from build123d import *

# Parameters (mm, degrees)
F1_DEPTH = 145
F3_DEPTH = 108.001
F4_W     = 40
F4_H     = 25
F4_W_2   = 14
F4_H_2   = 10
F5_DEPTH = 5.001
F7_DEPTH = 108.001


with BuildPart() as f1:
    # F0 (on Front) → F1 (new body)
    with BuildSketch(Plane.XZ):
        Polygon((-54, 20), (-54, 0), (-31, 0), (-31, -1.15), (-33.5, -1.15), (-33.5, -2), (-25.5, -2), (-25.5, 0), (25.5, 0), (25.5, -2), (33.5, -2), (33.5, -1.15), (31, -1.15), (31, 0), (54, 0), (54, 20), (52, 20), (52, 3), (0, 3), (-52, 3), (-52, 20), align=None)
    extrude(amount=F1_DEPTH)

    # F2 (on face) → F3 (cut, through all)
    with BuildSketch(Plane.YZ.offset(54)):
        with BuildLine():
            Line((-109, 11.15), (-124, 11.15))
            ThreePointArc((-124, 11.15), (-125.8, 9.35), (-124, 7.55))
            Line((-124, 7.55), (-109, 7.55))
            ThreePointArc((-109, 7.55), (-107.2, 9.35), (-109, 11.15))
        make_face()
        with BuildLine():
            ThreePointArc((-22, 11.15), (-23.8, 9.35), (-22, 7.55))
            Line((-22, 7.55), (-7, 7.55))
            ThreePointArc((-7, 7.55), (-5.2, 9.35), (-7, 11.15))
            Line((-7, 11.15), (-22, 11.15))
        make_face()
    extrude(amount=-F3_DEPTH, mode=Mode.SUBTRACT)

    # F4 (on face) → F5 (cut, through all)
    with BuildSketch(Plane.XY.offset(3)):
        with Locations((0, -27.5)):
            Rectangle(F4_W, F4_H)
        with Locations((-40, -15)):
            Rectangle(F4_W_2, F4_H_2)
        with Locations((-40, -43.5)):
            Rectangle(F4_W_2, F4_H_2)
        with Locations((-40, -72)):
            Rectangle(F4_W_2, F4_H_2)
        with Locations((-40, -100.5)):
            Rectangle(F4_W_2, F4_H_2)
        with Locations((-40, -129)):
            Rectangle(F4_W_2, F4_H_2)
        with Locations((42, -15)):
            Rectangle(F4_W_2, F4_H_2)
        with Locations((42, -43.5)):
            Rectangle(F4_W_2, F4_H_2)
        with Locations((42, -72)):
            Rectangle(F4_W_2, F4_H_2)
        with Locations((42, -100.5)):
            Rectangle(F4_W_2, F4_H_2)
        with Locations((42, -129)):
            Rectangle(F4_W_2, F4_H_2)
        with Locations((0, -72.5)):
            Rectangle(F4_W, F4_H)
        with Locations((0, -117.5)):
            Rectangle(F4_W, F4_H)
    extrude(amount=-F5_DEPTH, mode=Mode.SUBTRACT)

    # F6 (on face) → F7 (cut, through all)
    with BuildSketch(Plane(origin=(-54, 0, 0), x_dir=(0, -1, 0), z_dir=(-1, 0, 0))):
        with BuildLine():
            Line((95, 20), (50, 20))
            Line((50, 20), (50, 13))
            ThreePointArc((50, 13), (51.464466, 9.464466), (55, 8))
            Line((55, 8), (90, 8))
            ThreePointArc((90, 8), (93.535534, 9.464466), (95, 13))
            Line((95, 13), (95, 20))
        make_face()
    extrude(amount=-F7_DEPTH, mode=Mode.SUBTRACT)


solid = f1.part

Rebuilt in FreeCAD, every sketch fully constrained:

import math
import FreeCAD as App
import Part
import Sketcher
from FreeCAD import Vector

doc = App.newDocument("Part")
params = doc.addObject("Spreadsheet::Sheet", "Params")
for row, (alias, value) in enumerate([
    ("sketch1_width", "23 mm"),
    ("sketch1_width2", "8 mm"),
    ("sketch1_width3", "51 mm"),
    ("sketch1_width4", "2 mm"),
    ("sketch1_width5", "104 mm"),
    ("pad1_length", "145 mm"),
    ("sketch2_radius", "1.8 mm"),
    ("sketch2_width", "15 mm"),
    ("sketch3_width", "40 mm"),
    ("sketch3_width2", "14 mm"),
    ("sketch3_height", "25 mm"),
    ("sketch3_height2", "10 mm"),
    ("sketch4_radius", "5 mm"),
    ("sketch4_width", "45 mm"),
    ("sketch4_height", "7 mm"),
], start=1):
    params.set(f"A{row}", alias)
    params.set(f"B{row}", "=" + value)
    params.setAlias(f"B{row}", alias)

body = doc.addObject("PartDesign::Body", "Body")

sketch1 = doc.addObject("Sketcher::SketchObject", "Sketch")
body.addObject(sketch1)
sketch1.AttachmentSupport = (doc.XZ_Plane, [""])
sketch1.MapMode = "FlatFace"
sketch1.addGeometry([
    Part.LineSegment(Vector(-54, 20, 0), Vector(-54, 0, 0)),
    Part.LineSegment(Vector(-54, 0, 0), Vector(-31, 0, 0)),
    Part.LineSegment(Vector(-31, 0, 0), Vector(-31, -1.1, 0)),
    Part.LineSegment(Vector(-31, -1.1, 0), Vector(-33.5, -1.1, 0)),
    Part.LineSegment(Vector(-33.5, -1.1, 0), Vector(-33.5, -2, 0)),
    Part.LineSegment(Vector(-33.5, -2, 0), Vector(-25.5, -2, 0)),
    Part.LineSegment(Vector(-25.5, -2, 0), Vector(-25.5, 0, 0)),
    Part.LineSegment(Vector(-25.5, 0, 0), Vector(25.5, 0, 0)),
    Part.LineSegment(Vector(25.5, 0, 0), Vector(25.5, -2, 0)),
    Part.LineSegment(Vector(25.5, -2, 0), Vector(33.5, -2, 0)),
    Part.LineSegment(Vector(33.5, -2, 0), Vector(33.5, -1.1, 0)),
    Part.LineSegment(Vector(33.5, -1.1, 0), Vector(31, -1.1, 0)),
    Part.LineSegment(Vector(31, -1.1, 0), Vector(31, 0, 0)),
    Part.LineSegment(Vector(31, 0, 0), Vector(54, 0, 0)),
    Part.LineSegment(Vector(54, 0, 0), Vector(54, 20, 0)),
    Part.LineSegment(Vector(54, 20, 0), Vector(52, 20, 0)),
    Part.LineSegment(Vector(52, 20, 0), Vector(52, 3, 0)),
    Part.LineSegment(Vector(52, 3, 0), Vector(-52, 3, 0)),
    Part.LineSegment(Vector(-52, 3, 0), Vector(-52, 20, 0)),
    Part.LineSegment(Vector(-52, 20, 0), Vector(-54, 20, 0)),
], False)
sketch1.addConstraint([
    Sketcher.Constraint("Coincident", 0, 2, 1, 1),
    Sketcher.Constraint("Coincident", 1, 2, 2, 1),
    Sketcher.Constraint("Coincident", 2, 2, 3, 1),
    Sketcher.Constraint("Coincident", 3, 2, 4, 1),
    Sketcher.Constraint("Coincident", 4, 2, 5, 1),
    Sketcher.Constraint("Coincident", 5, 2, 6, 1),
    Sketcher.Constraint("Coincident", 6, 2, 7, 1),
    Sketcher.Constraint("Coincident", 7, 2, 8, 1),
    Sketcher.Constraint("Coincident", 8, 2, 9, 1),
    Sketcher.Constraint("Coincident", 9, 2, 10, 1),
    Sketcher.Constraint("Coincident", 10, 2, 11, 1),
    Sketcher.Constraint("Coincident", 11, 2, 12, 1),
    Sketcher.Constraint("Coincident", 12, 2, 13, 1),
    Sketcher.Constraint("Coincident", 13, 2, 14, 1),
    Sketcher.Constraint("Coincident", 14, 2, 15, 1),
    Sketcher.Constraint("Coincident", 15, 2, 16, 1),
    Sketcher.Constraint("Coincident", 16, 2, 17, 1),
    Sketcher.Constraint("Coincident", 17, 2, 18, 1),
    Sketcher.Constraint("Coincident", 18, 2, 19, 1),
    Sketcher.Constraint("Coincident", 19, 2, 0, 1),
    Sketcher.Constraint("Vertical", 0),
    Sketcher.Constraint("Horizontal", 1),
    Sketcher.Constraint("Vertical", 2),
    Sketcher.Constraint("Horizontal", 3),
    Sketcher.Constraint("Vertical", 4),
    Sketcher.Constraint("Horizontal", 5),
    Sketcher.Constraint("Vertical", 6),
    Sketcher.Constraint("Horizontal", 7),
    Sketcher.Constraint("Vertical", 8),
    Sketcher.Constraint("Horizontal", 9),
    Sketcher.Constraint("Vertical", 10),
    Sketcher.Constraint("Horizontal", 11),
    Sketcher.Constraint("Vertical", 12),
    Sketcher.Constraint("Horizontal", 13),
    Sketcher.Constraint("Vertical", 14),
    Sketcher.Constraint("Horizontal", 15),
    Sketcher.Constraint("Vertical", 16),
    Sketcher.Constraint("Horizontal", 17),
    Sketcher.Constraint("Vertical", 18),
    Sketcher.Constraint("Horizontal", 19),
    Sketcher.Constraint("Symmetric", 6, 2, 7, 2, -1, 1),
    Sketcher.Constraint("Symmetric", 1, 2, 12, 2, -1, 1),
    Sketcher.Constraint("Symmetric", 4, 2, 9, 2, -2),
    Sketcher.Constraint("Symmetric", 0, 2, 13, 2, -2),
    Sketcher.Constraint("Symmetric", 15, 2, 18, 2, -2),
    Sketcher.Constraint("Horizontal", 3, 2, 10, 2),
    Sketcher.Constraint("Equal", 19, 6),
    Sketcher.Constraint("DistanceX", 1, 1, 1, 2, 23.0),
    Sketcher.Constraint("DistanceX", 5, 1, 5, 2, 8.0),
    Sketcher.Constraint("DistanceX", 7, 1, 7, 2, 51.0),
    Sketcher.Constraint("DistanceX", 15, 2, 15, 1, 2.0),
    Sketcher.Constraint("DistanceX", 17, 2, 17, 1, 104.0),
    Sketcher.Constraint("DistanceY", 0, 2, 0, 1, 20.0),
    Sketcher.Constraint("DistanceY", 16, 2, 16, 1, 17.0),
    Sketcher.Constraint("DistanceY", 2, 2, 2, 1, 1.15),
])
sketch1.setExpression("Constraints[47]", "Params.sketch1_width")
sketch1.setExpression("Constraints[48]", "Params.sketch1_width2")
sketch1.setExpression("Constraints[49]", "Params.sketch1_width3")
sketch1.setExpression("Constraints[50]", "Params.sketch1_width4")
sketch1.setExpression("Constraints[51]", "Params.sketch1_width5")
pad1 = doc.addObject("PartDesign::Pad", "Pad")
body.addObject(pad1)
pad1.Profile = sketch1
pad1.setExpression("Length", "Params.pad1_length")

sketch2 = doc.addObject("Sketcher::SketchObject", "Sketch001")
body.addObject(sketch2)
sketch2.AttachmentSupport = (doc.YZ_Plane, [""])
sketch2.MapMode = "FlatFace"
sketch2.AttachmentOffset = App.Placement(Vector(0, 0, 54), App.Rotation())
sketch2.addGeometry([
    Part.LineSegment(Vector(-109, 11.2, 0), Vector(-124, 11.2, 0)),
    Part.ArcOfCircle(Part.Circle(Vector(-124, 9.3, 0), Vector(0, 0, 1), 1.8), math.radians(90), math.radians(270)),
    Part.LineSegment(Vector(-124, 7.5, 0), Vector(-109, 7.5, 0)),
    Part.ArcOfCircle(Part.Circle(Vector(-109, 9.3, 0), Vector(0, 0, 1), 1.8), math.radians(-90), math.radians(90)),
    Part.ArcOfCircle(Part.Circle(Vector(-22, 9.3, 0), Vector(0, 0, 1), 1.8), math.radians(90), math.radians(270)),
    Part.LineSegment(Vector(-22, 7.5, 0), Vector(-7, 7.5, 0)),
    Part.ArcOfCircle(Part.Circle(Vector(-7, 9.3, 0), Vector(0, 0, 1), 1.8), math.radians(-90), math.radians(90)),
    Part.LineSegment(Vector(-7, 11.2, 0), Vector(-22, 11.2, 0)),
], False)
sketch2.addConstraint([
    Sketcher.Constraint("Tangent", 0, 2, 1, 1),
    Sketcher.Constraint("Tangent", 1, 2, 2, 1),
    Sketcher.Constraint("Tangent", 2, 2, 3, 1),
    Sketcher.Constraint("Tangent", 3, 2, 0, 1),
    Sketcher.Constraint("Tangent", 4, 2, 5, 1),
    Sketcher.Constraint("Tangent", 5, 2, 6, 1),
    Sketcher.Constraint("Tangent", 6, 2, 7, 1),
    Sketcher.Constraint("Tangent", 7, 2, 4, 1),
    Sketcher.Constraint("Horizontal", 0),
    Sketcher.Constraint("Horizontal", 2),
    Sketcher.Constraint("Horizontal", 5),
    Sketcher.Constraint("Horizontal", 7),
    Sketcher.Constraint("Equal", 3, 4),
    Sketcher.Constraint("Horizontal", 3, 3, 4, 3),
    Sketcher.Constraint("Equal", 2, 5),
    Sketcher.Constraint("Radius", 1, 1.8),
    Sketcher.Constraint("DistanceX", 0, 2, 0, 1, 15.0),
    Sketcher.Constraint("DistanceX", 1, 3, -1, 1, 124.0),
    Sketcher.Constraint("DistanceX", 4, 3, -1, 1, 22.0),
    Sketcher.Constraint("DistanceY", -1, 1, 1, 3, 9.35),
])
sketch2.setExpression("Constraints[15]", "Params.sketch2_radius")
sketch2.setExpression("Constraints[16]", "Params.sketch2_width")
pocket1 = doc.addObject("PartDesign::Pocket", "Pocket")
body.addObject(pocket1)
pocket1.Profile = sketch2
pocket1.Type = "ThroughAll"

sketch3 = doc.addObject("Sketcher::SketchObject", "Sketch002")
body.addObject(sketch3)
sketch3.AttachmentSupport = (doc.XY_Plane, [""])
sketch3.MapMode = "FlatFace"
sketch3.AttachmentOffset = App.Placement(Vector(0, 0, 3), App.Rotation())
sketch3.addGeometry([
    Part.LineSegment(Vector(-20, -15, 0), Vector(-20, -40, 0)),
    Part.LineSegment(Vector(-20, -40, 0), Vector(20, -40, 0)),
    Part.LineSegment(Vector(20, -40, 0), Vector(20, -15, 0)),
    Part.LineSegment(Vector(20, -15, 0), Vector(-20, -15, 0)),
    Part.LineSegment(Vector(-47, -10, 0), Vector(-47, -20, 0)),
    Part.LineSegment(Vector(-47, -20, 0), Vector(-33, -20, 0)),
    Part.LineSegment(Vector(-33, -20, 0), Vector(-33, -10, 0)),
    Part.LineSegment(Vector(-33, -10, 0), Vector(-47, -10, 0)),
    Part.LineSegment(Vector(-47, -38, 0), Vector(-47, -48, 0)),
    Part.LineSegment(Vector(-47, -48, 0), Vector(-33, -48, 0)),
    Part.LineSegment(Vector(-33, -48, 0), Vector(-33, -38, 0)),
    Part.LineSegment(Vector(-33, -38, 0), Vector(-47, -38, 0)),
    Part.LineSegment(Vector(-47, -67, 0), Vector(-47, -77, 0)),
    Part.LineSegment(Vector(-47, -77, 0), Vector(-33, -77, 0)),
    Part.LineSegment(Vector(-33, -77, 0), Vector(-33, -67, 0)),
    Part.LineSegment(Vector(-33, -67, 0), Vector(-47, -67, 0)),
    Part.LineSegment(Vector(-47, -96, 0), Vector(-47, -106, 0)),
    Part.LineSegment(Vector(-47, -106, 0), Vector(-33, -106, 0)),
    Part.LineSegment(Vector(-33, -106, 0), Vector(-33, -96, 0)),
    Part.LineSegment(Vector(-33, -96, 0), Vector(-47, -96, 0)),
    Part.LineSegment(Vector(-47, -124, 0), Vector(-47, -134, 0)),
    Part.LineSegment(Vector(-47, -134, 0), Vector(-33, -134, 0)),
    Part.LineSegment(Vector(-33, -134, 0), Vector(-33, -124, 0)),
    Part.LineSegment(Vector(-33, -124, 0), Vector(-47, -124, 0)),
    Part.LineSegment(Vector(35, -10, 0), Vector(35, -20, 0)),
    Part.LineSegment(Vector(35, -20, 0), Vector(49, -20, 0)),
    Part.LineSegment(Vector(49, -20, 0), Vector(49, -10, 0)),
    Part.LineSegment(Vector(49, -10, 0), Vector(35, -10, 0)),
    Part.LineSegment(Vector(35, -38, 0), Vector(35, -48, 0)),
    Part.LineSegment(Vector(35, -48, 0), Vector(49, -48, 0)),
    Part.LineSegment(Vector(49, -48, 0), Vector(49, -38, 0)),
    Part.LineSegment(Vector(49, -38, 0), Vector(35, -38, 0)),
    Part.LineSegment(Vector(35, -67, 0), Vector(35, -77, 0)),
    Part.LineSegment(Vector(35, -77, 0), Vector(49, -77, 0)),
    Part.LineSegment(Vector(49, -77, 0), Vector(49, -67, 0)),
    Part.LineSegment(Vector(49, -67, 0), Vector(35, -67, 0)),
    Part.LineSegment(Vector(35, -96, 0), Vector(35, -106, 0)),
    Part.LineSegment(Vector(35, -106, 0), Vector(49, -106, 0)),
    Part.LineSegment(Vector(49, -106, 0), Vector(49, -96, 0)),
    Part.LineSegment(Vector(49, -96, 0), Vector(35, -96, 0)),
    Part.LineSegment(Vector(35, -124, 0), Vector(35, -134, 0)),
    Part.LineSegment(Vector(35, -134, 0), Vector(49, -134, 0)),
    Part.LineSegment(Vector(49, -134, 0), Vector(49, -124, 0)),
    Part.LineSegment(Vector(49, -124, 0), Vector(35, -124, 0)),
    Part.LineSegment(Vector(-20, -60, 0), Vector(-20, -85, 0)),
    Part.LineSegment(Vector(-20, -85, 0), Vector(20, -85, 0)),
    Part.LineSegment(Vector(20, -85, 0), Vector(20, -60, 0)),
    Part.LineSegment(Vector(20, -60, 0), Vector(-20, -60, 0)),
    Part.LineSegment(Vector(-20, -105, 0), Vector(-20, -130, 0)),
    Part.LineSegment(Vector(-20, -130, 0), Vector(20, -130, 0)),
    Part.LineSegment(Vector(20, -130, 0), Vector(20, -105, 0)),
    Part.LineSegment(Vector(20, -105, 0), Vector(-20, -105, 0)),
], False)
sketch3.addConstraint([
    Sketcher.Constraint("Coincident", 0, 2, 1, 1),
    Sketcher.Constraint("Coincident", 1, 2, 2, 1),
    Sketcher.Constraint("Coincident", 2, 2, 3, 1),
    Sketcher.Constraint("Coincident", 3, 2, 0, 1),
    Sketcher.Constraint("Coincident", 4, 2, 5, 1),
    Sketcher.Constraint("Coincident", 5, 2, 6, 1),
    Sketcher.Constraint("Coincident", 6, 2, 7, 1),
    Sketcher.Constraint("Coincident", 7, 2, 4, 1),
    Sketcher.Constraint("Coincident", 8, 2, 9, 1),
    Sketcher.Constraint("Coincident", 9, 2, 10, 1),
    Sketcher.Constraint("Coincident", 10, 2, 11, 1),
    Sketcher.Constraint("Coincident", 11, 2, 8, 1),
    Sketcher.Constraint("Coincident", 12, 2, 13, 1),
    Sketcher.Constraint("Coincident", 13, 2, 14, 1),
    Sketcher.Constraint("Coincident", 14, 2, 15, 1),
    Sketcher.Constraint("Coincident", 15, 2, 12, 1),
    Sketcher.Constraint("Coincident", 16, 2, 17, 1),
    Sketcher.Constraint("Coincident", 17, 2, 18, 1),
    Sketcher.Constraint("Coincident", 18, 2, 19, 1),
    Sketcher.Constraint("Coincident", 19, 2, 16, 1),
    Sketcher.Constraint("Coincident", 20, 2, 21, 1),
    Sketcher.Constraint("Coincident", 21, 2, 22, 1),
    Sketcher.Constraint("Coincident", 22, 2, 23, 1),
    Sketcher.Constraint("Coincident", 23, 2, 20, 1),
    Sketcher.Constraint("Coincident", 24, 2, 25, 1),
    Sketcher.Constraint("Coincident", 25, 2, 26, 1),
    Sketcher.Constraint("Coincident", 26, 2, 27, 1),
    Sketcher.Constraint("Coincident", 27, 2, 24, 1),
    Sketcher.Constraint("Coincident", 28, 2, 29, 1),
    Sketcher.Constraint("Coincident", 29, 2, 30, 1),
    Sketcher.Constraint("Coincident", 30, 2, 31, 1),
    Sketcher.Constraint("Coincident", 31, 2, 28, 1),
    Sketcher.Constraint("Coincident", 32, 2, 33, 1),
    Sketcher.Constraint("Coincident", 33, 2, 34, 1),
    Sketcher.Constraint("Coincident", 34, 2, 35, 1),
    Sketcher.Constraint("Coincident", 35, 2, 32, 1),
    Sketcher.Constraint("Coincident", 36, 2, 37, 1),
    Sketcher.Constraint("Coincident", 37, 2, 38, 1),
    Sketcher.Constraint("Coincident", 38, 2, 39, 1),
    Sketcher.Constraint("Coincident", 39, 2, 36, 1),
    Sketcher.Constraint("Coincident", 40, 2, 41, 1),
    Sketcher.Constraint("Coincident", 41, 2, 42, 1),
    Sketcher.Constraint("Coincident", 42, 2, 43, 1),
    Sketcher.Constraint("Coincident", 43, 2, 40, 1),
    Sketcher.Constraint("Coincident", 44, 2, 45, 1),
    Sketcher.Constraint("Coincident", 45, 2, 46, 1),
    Sketcher.Constraint("Coincident", 46, 2, 47, 1),
    Sketcher.Constraint("Coincident", 47, 2, 44, 1),
    Sketcher.Constraint("Coincident", 48, 2, 49, 1),
    Sketcher.Constraint("Coincident", 49, 2, 50, 1),
    Sketcher.Constraint("Coincident", 50, 2, 51, 1),
    Sketcher.Constraint("Coincident", 51, 2, 48, 1),
    Sketcher.Constraint("Vertical", 0),
    Sketcher.Constraint("Horizontal", 1),
    Sketcher.Constraint("Vertical", 2),
    Sketcher.Constraint("Horizontal", 3),
    Sketcher.Constraint("Vertical", 4),
    Sketcher.Constraint("Horizontal", 5),
    Sketcher.Constraint("Vertical", 6),
    Sketcher.Constraint("Horizontal", 7),
    Sketcher.Constraint("Vertical", 8),
    Sketcher.Constraint("Horizontal", 9),
    Sketcher.Constraint("Vertical", 10),
    Sketcher.Constraint("Horizontal", 11),
    Sketcher.Constraint("Vertical", 12),
    Sketcher.Constraint("Horizontal", 13),
    Sketcher.Constraint("Vertical", 14),
    Sketcher.Constraint("Horizontal", 15),
    Sketcher.Constraint("Vertical", 16),
    Sketcher.Constraint("Horizontal", 17),
    Sketcher.Constraint("Vertical", 18),
    Sketcher.Constraint("Horizontal", 19),
    Sketcher.Constraint("Vertical", 20),
    Sketcher.Constraint("Horizontal", 21),
    Sketcher.Constraint("Vertical", 22),
    Sketcher.Constraint("Horizontal", 23),
    Sketcher.Constraint("Vertical", 24),
    Sketcher.Constraint("Horizontal", 25),
    Sketcher.Constraint("Vertical", 26),
    Sketcher.Constraint("Horizontal", 27),
    Sketcher.Constraint("Vertical", 28),
    Sketcher.Constraint("Horizontal", 29),
    Sketcher.Constraint("Vertical", 30),
    Sketcher.Constraint("Horizontal", 31),
    Sketcher.Constraint("Vertical", 32),
    Sketcher.Constraint("Horizontal", 33),
    Sketcher.Constraint("Vertical", 34),
    Sketcher.Constraint("Horizontal", 35),
    Sketcher.Constraint("Vertical", 36),
    Sketcher.Constraint("Horizontal", 37),
    Sketcher.Constraint("Vertical", 38),
    Sketcher.Constraint("Horizontal", 39),
    Sketcher.Constraint("Vertical", 40),
    Sketcher.Constraint("Horizontal", 41),
    Sketcher.Constraint("Vertical", 42),
    Sketcher.Constraint("Horizontal", 43),
    Sketcher.Constraint("Vertical", 44),
    Sketcher.Constraint("Horizontal", 45),
    Sketcher.Constraint("Vertical", 46),
    Sketcher.Constraint("Horizontal", 47),
    Sketcher.Constraint("Vertical", 48),
    Sketcher.Constraint("Horizontal", 49),
    Sketcher.Constraint("Vertical", 50),
    Sketcher.Constraint("Horizontal", 51),
    Sketcher.Constraint("Horizontal", 5, 2, 24, 2),
    Sketcher.Constraint("Horizontal", 7, 2, 26, 2),
    Sketcher.Constraint("Horizontal", 9, 2, 28, 2),
    Sketcher.Constraint("Horizontal", 11, 2, 30, 2),
    Sketcher.Constraint("Horizontal", 13, 2, 32, 2),
    Sketcher.Constraint("Horizontal", 15, 2, 34, 2),
    Sketcher.Constraint("Horizontal", 17, 2, 36, 2),
    Sketcher.Constraint("Horizontal", 19, 2, 38, 2),
    Sketcher.Constraint("Horizontal", 21, 2, 40, 2),
    Sketcher.Constraint("Horizontal", 23, 2, 42, 2),
    Sketcher.Constraint("Vertical", 7, 2, 8, 2),
    Sketcher.Constraint("Vertical", 6, 2, 9, 2),
    Sketcher.Constraint("Vertical", 11, 2, 12, 2),
    Sketcher.Constraint("Vertical", 10, 2, 13, 2),
    Sketcher.Constraint("Vertical", 15, 2, 16, 2),
    Sketcher.Constraint("Vertical", 14, 2, 17, 2),
    Sketcher.Constraint("Vertical", 19, 2, 20, 2),
    Sketcher.Constraint("Vertical", 18, 2, 21, 2),
    Sketcher.Constraint("Vertical", 27, 2, 28, 2),
    Sketcher.Constraint("Vertical", 26, 2, 29, 2),
    Sketcher.Constraint("Vertical", 31, 2, 32, 2),
    Sketcher.Constraint("Vertical", 30, 2, 33, 2),
    Sketcher.Constraint("Vertical", 35, 2, 36, 2),
    Sketcher.Constraint("Vertical", 34, 2, 37, 2),
    Sketcher.Constraint("Vertical", 39, 2, 40, 2),
    Sketcher.Constraint("Vertical", 38, 2, 41, 2),
    Sketcher.Constraint("Vertical", 3, 2, 44, 2),
    Sketcher.Constraint("Vertical", 2, 2, 45, 2),
    Sketcher.Constraint("Vertical", 47, 2, 48, 2),
    Sketcher.Constraint("Vertical", 46, 2, 49, 2),
    Sketcher.Constraint("Equal", 23, 25),
    Sketcher.Constraint("Equal", 6, 8),
    Sketcher.Constraint("Equal", 10, 12),
    Sketcher.Constraint("Equal", 14, 16),
    Sketcher.Constraint("Equal", 18, 20),
    Sketcher.Constraint("Equal", 2, 44),
    Sketcher.Constraint("Equal", 46, 48),
    Sketcher.Constraint("DistanceX", 1, 1, 1, 2, 40.0),
    Sketcher.Constraint("DistanceX", 5, 1, 5, 2, 14.0),
    Sketcher.Constraint("DistanceY", 0, 2, 0, 1, 25.0),
    Sketcher.Constraint("DistanceY", 4, 2, 4, 1, 10.0),
    Sketcher.Constraint("DistanceX", 0, 2, -1, 1, 20.0),
    Sketcher.Constraint("DistanceY", 0, 2, -1, 1, 40.0),
    Sketcher.Constraint("DistanceX", 4, 2, -1, 1, 47.0),
    Sketcher.Constraint("DistanceY", 4, 2, -1, 1, 20.0),
    Sketcher.Constraint("DistanceY", 12, 2, -1, 1, 77.0),
    Sketcher.Constraint("DistanceY", 20, 2, -1, 1, 134.0),
    Sketcher.Constraint("DistanceX", -1, 1, 24, 2, 35.0),
    Sketcher.Constraint("DistanceY", 44, 2, -1, 1, 85.0),
    Sketcher.Constraint("DistanceY", 48, 2, -1, 1, 130.0),
    Sketcher.Constraint("DistanceY", 16, 2, 8, 2, 57.0),
    Sketcher.Constraint("DistanceY", 8, 2, -1, 1, 48.5),
])
sketch3.setExpression("Constraints[141]", "Params.sketch3_width")
sketch3.setExpression("Constraints[142]", "Params.sketch3_width2")
sketch3.setExpression("Constraints[143]", "Params.sketch3_height")
sketch3.setExpression("Constraints[144]", "Params.sketch3_height2")
pocket2 = doc.addObject("PartDesign::Pocket", "Pocket001")
body.addObject(pocket2)
pocket2.Profile = sketch3
pocket2.Type = "ThroughAll"

sketch4 = doc.addObject("Sketcher::SketchObject", "Sketch003")
body.addObject(sketch4)
sketch4.AttachmentSupport = (doc.YZ_Plane, [""])
sketch4.MapMode = "FlatFace"
sketch4.AttachmentOffset = App.Placement(Vector(0, 0, -54), App.Rotation())
sketch4.addGeometry([
    Part.LineSegment(Vector(-95, 20, 0), Vector(-50, 20, 0)),
    Part.LineSegment(Vector(-50, 20, 0), Vector(-50, 13, 0)),
    Part.ArcOfCircle(Part.Circle(Vector(-55, 13, 0), Vector(0, 0, 1), 5), math.radians(-90), math.radians(0)),
    Part.LineSegment(Vector(-55, 8, 0), Vector(-90, 8, 0)),
    Part.ArcOfCircle(Part.Circle(Vector(-90, 13, 0), Vector(0, 0, 1), 5), math.radians(180), math.radians(270)),
    Part.LineSegment(Vector(-95, 13, 0), Vector(-95, 20, 0)),
], False)
sketch4.addConstraint([
    Sketcher.Constraint("Coincident", 0, 2, 1, 1),
    Sketcher.Constraint("Tangent", 1, 2, 2, 2),
    Sketcher.Constraint("Tangent", 2, 1, 3, 1),
    Sketcher.Constraint("Tangent", 3, 2, 4, 2),
    Sketcher.Constraint("Tangent", 4, 1, 5, 1),
    Sketcher.Constraint("Coincident", 5, 2, 0, 1),
    Sketcher.Constraint("Horizontal", 0),
    Sketcher.Constraint("Vertical", 1),
    Sketcher.Constraint("Horizontal", 3),
    Sketcher.Constraint("Vertical", 5),
    Sketcher.Constraint("Equal", 2, 4),
    Sketcher.Constraint("Radius", 2, 5.0),
    Sketcher.Constraint("DistanceX", 0, 1, 0, 2, 45.0),
    Sketcher.Constraint("DistanceY", 1, 2, 1, 1, 7.0),
    Sketcher.Constraint("DistanceX", 2, 3, -1, 1, 55.0),
    Sketcher.Constraint("DistanceY", -1, 1, 2, 3, 13.0),
])
sketch4.setExpression("Constraints[11]", "Params.sketch4_radius")
sketch4.setExpression("Constraints[12]", "Params.sketch4_width")
sketch4.setExpression("Constraints[13]", "Params.sketch4_height")
pocket3 = doc.addObject("PartDesign::Pocket", "Pocket002")
body.addObject(pocket3)
pocket3.Profile = sketch4
pocket3.Type = "ThroughAll"
pocket3.Reversed = True

doc.recompute()
